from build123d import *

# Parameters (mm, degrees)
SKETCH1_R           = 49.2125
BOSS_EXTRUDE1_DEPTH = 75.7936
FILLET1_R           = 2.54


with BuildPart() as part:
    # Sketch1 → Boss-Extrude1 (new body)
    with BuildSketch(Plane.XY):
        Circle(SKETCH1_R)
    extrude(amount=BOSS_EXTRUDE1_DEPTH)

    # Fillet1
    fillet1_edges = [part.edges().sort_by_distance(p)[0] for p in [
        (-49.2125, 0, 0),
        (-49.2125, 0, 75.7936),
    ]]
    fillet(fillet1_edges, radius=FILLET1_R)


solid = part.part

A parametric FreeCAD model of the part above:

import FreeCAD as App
import Part
import Sketcher
from FreeCAD import Vector
Q = App.Units.Quantity


def edges_at(feature, points):
    """Names of the edges that pass closest to the given points."""
    edges = feature.Shape.Edges
    near = lambda p: min(range(len(edges)), key=lambda i: edges[i].distToShape(Part.Vertex(*p))[0])
    return sorted({f"Edge{near(p) + 1}" for p in points})

doc = App.newDocument("Part")
body = doc.addObject("PartDesign::Body", "Body")

sketch1 = body.newObject("Sketcher::SketchObject", "Sketch")
sketch1.AttachmentSupport = (doc.getObject("XY_Plane"), [""])
sketch1.MapMode = "FlatFace"
sketch1.addGeometry(Part.Circle(Vector(0, 0, 0), Vector(0, 0, 1), 49), False)
sketch1.addConstraint([
    Sketcher.Constraint("Coincident", 0, 3, -1, 1),
    Sketcher.Constraint("Diameter", 0, Q("3.875 in")),
])
pad1 = body.newObject("PartDesign::Pad", "Pad")
pad1.Profile = sketch1
pad1.Length = Q("2.984 in")
doc.recompute()

fillet = body.newObject("PartDesign::Fillet", "Fillet")
fillet.Base = (pad1, edges_at(pad1, [(-49.212, 0, 0), (-49.212, 0, 75.794)]))
fillet.Radius = Q("0.1 in")

doc.recompute()
